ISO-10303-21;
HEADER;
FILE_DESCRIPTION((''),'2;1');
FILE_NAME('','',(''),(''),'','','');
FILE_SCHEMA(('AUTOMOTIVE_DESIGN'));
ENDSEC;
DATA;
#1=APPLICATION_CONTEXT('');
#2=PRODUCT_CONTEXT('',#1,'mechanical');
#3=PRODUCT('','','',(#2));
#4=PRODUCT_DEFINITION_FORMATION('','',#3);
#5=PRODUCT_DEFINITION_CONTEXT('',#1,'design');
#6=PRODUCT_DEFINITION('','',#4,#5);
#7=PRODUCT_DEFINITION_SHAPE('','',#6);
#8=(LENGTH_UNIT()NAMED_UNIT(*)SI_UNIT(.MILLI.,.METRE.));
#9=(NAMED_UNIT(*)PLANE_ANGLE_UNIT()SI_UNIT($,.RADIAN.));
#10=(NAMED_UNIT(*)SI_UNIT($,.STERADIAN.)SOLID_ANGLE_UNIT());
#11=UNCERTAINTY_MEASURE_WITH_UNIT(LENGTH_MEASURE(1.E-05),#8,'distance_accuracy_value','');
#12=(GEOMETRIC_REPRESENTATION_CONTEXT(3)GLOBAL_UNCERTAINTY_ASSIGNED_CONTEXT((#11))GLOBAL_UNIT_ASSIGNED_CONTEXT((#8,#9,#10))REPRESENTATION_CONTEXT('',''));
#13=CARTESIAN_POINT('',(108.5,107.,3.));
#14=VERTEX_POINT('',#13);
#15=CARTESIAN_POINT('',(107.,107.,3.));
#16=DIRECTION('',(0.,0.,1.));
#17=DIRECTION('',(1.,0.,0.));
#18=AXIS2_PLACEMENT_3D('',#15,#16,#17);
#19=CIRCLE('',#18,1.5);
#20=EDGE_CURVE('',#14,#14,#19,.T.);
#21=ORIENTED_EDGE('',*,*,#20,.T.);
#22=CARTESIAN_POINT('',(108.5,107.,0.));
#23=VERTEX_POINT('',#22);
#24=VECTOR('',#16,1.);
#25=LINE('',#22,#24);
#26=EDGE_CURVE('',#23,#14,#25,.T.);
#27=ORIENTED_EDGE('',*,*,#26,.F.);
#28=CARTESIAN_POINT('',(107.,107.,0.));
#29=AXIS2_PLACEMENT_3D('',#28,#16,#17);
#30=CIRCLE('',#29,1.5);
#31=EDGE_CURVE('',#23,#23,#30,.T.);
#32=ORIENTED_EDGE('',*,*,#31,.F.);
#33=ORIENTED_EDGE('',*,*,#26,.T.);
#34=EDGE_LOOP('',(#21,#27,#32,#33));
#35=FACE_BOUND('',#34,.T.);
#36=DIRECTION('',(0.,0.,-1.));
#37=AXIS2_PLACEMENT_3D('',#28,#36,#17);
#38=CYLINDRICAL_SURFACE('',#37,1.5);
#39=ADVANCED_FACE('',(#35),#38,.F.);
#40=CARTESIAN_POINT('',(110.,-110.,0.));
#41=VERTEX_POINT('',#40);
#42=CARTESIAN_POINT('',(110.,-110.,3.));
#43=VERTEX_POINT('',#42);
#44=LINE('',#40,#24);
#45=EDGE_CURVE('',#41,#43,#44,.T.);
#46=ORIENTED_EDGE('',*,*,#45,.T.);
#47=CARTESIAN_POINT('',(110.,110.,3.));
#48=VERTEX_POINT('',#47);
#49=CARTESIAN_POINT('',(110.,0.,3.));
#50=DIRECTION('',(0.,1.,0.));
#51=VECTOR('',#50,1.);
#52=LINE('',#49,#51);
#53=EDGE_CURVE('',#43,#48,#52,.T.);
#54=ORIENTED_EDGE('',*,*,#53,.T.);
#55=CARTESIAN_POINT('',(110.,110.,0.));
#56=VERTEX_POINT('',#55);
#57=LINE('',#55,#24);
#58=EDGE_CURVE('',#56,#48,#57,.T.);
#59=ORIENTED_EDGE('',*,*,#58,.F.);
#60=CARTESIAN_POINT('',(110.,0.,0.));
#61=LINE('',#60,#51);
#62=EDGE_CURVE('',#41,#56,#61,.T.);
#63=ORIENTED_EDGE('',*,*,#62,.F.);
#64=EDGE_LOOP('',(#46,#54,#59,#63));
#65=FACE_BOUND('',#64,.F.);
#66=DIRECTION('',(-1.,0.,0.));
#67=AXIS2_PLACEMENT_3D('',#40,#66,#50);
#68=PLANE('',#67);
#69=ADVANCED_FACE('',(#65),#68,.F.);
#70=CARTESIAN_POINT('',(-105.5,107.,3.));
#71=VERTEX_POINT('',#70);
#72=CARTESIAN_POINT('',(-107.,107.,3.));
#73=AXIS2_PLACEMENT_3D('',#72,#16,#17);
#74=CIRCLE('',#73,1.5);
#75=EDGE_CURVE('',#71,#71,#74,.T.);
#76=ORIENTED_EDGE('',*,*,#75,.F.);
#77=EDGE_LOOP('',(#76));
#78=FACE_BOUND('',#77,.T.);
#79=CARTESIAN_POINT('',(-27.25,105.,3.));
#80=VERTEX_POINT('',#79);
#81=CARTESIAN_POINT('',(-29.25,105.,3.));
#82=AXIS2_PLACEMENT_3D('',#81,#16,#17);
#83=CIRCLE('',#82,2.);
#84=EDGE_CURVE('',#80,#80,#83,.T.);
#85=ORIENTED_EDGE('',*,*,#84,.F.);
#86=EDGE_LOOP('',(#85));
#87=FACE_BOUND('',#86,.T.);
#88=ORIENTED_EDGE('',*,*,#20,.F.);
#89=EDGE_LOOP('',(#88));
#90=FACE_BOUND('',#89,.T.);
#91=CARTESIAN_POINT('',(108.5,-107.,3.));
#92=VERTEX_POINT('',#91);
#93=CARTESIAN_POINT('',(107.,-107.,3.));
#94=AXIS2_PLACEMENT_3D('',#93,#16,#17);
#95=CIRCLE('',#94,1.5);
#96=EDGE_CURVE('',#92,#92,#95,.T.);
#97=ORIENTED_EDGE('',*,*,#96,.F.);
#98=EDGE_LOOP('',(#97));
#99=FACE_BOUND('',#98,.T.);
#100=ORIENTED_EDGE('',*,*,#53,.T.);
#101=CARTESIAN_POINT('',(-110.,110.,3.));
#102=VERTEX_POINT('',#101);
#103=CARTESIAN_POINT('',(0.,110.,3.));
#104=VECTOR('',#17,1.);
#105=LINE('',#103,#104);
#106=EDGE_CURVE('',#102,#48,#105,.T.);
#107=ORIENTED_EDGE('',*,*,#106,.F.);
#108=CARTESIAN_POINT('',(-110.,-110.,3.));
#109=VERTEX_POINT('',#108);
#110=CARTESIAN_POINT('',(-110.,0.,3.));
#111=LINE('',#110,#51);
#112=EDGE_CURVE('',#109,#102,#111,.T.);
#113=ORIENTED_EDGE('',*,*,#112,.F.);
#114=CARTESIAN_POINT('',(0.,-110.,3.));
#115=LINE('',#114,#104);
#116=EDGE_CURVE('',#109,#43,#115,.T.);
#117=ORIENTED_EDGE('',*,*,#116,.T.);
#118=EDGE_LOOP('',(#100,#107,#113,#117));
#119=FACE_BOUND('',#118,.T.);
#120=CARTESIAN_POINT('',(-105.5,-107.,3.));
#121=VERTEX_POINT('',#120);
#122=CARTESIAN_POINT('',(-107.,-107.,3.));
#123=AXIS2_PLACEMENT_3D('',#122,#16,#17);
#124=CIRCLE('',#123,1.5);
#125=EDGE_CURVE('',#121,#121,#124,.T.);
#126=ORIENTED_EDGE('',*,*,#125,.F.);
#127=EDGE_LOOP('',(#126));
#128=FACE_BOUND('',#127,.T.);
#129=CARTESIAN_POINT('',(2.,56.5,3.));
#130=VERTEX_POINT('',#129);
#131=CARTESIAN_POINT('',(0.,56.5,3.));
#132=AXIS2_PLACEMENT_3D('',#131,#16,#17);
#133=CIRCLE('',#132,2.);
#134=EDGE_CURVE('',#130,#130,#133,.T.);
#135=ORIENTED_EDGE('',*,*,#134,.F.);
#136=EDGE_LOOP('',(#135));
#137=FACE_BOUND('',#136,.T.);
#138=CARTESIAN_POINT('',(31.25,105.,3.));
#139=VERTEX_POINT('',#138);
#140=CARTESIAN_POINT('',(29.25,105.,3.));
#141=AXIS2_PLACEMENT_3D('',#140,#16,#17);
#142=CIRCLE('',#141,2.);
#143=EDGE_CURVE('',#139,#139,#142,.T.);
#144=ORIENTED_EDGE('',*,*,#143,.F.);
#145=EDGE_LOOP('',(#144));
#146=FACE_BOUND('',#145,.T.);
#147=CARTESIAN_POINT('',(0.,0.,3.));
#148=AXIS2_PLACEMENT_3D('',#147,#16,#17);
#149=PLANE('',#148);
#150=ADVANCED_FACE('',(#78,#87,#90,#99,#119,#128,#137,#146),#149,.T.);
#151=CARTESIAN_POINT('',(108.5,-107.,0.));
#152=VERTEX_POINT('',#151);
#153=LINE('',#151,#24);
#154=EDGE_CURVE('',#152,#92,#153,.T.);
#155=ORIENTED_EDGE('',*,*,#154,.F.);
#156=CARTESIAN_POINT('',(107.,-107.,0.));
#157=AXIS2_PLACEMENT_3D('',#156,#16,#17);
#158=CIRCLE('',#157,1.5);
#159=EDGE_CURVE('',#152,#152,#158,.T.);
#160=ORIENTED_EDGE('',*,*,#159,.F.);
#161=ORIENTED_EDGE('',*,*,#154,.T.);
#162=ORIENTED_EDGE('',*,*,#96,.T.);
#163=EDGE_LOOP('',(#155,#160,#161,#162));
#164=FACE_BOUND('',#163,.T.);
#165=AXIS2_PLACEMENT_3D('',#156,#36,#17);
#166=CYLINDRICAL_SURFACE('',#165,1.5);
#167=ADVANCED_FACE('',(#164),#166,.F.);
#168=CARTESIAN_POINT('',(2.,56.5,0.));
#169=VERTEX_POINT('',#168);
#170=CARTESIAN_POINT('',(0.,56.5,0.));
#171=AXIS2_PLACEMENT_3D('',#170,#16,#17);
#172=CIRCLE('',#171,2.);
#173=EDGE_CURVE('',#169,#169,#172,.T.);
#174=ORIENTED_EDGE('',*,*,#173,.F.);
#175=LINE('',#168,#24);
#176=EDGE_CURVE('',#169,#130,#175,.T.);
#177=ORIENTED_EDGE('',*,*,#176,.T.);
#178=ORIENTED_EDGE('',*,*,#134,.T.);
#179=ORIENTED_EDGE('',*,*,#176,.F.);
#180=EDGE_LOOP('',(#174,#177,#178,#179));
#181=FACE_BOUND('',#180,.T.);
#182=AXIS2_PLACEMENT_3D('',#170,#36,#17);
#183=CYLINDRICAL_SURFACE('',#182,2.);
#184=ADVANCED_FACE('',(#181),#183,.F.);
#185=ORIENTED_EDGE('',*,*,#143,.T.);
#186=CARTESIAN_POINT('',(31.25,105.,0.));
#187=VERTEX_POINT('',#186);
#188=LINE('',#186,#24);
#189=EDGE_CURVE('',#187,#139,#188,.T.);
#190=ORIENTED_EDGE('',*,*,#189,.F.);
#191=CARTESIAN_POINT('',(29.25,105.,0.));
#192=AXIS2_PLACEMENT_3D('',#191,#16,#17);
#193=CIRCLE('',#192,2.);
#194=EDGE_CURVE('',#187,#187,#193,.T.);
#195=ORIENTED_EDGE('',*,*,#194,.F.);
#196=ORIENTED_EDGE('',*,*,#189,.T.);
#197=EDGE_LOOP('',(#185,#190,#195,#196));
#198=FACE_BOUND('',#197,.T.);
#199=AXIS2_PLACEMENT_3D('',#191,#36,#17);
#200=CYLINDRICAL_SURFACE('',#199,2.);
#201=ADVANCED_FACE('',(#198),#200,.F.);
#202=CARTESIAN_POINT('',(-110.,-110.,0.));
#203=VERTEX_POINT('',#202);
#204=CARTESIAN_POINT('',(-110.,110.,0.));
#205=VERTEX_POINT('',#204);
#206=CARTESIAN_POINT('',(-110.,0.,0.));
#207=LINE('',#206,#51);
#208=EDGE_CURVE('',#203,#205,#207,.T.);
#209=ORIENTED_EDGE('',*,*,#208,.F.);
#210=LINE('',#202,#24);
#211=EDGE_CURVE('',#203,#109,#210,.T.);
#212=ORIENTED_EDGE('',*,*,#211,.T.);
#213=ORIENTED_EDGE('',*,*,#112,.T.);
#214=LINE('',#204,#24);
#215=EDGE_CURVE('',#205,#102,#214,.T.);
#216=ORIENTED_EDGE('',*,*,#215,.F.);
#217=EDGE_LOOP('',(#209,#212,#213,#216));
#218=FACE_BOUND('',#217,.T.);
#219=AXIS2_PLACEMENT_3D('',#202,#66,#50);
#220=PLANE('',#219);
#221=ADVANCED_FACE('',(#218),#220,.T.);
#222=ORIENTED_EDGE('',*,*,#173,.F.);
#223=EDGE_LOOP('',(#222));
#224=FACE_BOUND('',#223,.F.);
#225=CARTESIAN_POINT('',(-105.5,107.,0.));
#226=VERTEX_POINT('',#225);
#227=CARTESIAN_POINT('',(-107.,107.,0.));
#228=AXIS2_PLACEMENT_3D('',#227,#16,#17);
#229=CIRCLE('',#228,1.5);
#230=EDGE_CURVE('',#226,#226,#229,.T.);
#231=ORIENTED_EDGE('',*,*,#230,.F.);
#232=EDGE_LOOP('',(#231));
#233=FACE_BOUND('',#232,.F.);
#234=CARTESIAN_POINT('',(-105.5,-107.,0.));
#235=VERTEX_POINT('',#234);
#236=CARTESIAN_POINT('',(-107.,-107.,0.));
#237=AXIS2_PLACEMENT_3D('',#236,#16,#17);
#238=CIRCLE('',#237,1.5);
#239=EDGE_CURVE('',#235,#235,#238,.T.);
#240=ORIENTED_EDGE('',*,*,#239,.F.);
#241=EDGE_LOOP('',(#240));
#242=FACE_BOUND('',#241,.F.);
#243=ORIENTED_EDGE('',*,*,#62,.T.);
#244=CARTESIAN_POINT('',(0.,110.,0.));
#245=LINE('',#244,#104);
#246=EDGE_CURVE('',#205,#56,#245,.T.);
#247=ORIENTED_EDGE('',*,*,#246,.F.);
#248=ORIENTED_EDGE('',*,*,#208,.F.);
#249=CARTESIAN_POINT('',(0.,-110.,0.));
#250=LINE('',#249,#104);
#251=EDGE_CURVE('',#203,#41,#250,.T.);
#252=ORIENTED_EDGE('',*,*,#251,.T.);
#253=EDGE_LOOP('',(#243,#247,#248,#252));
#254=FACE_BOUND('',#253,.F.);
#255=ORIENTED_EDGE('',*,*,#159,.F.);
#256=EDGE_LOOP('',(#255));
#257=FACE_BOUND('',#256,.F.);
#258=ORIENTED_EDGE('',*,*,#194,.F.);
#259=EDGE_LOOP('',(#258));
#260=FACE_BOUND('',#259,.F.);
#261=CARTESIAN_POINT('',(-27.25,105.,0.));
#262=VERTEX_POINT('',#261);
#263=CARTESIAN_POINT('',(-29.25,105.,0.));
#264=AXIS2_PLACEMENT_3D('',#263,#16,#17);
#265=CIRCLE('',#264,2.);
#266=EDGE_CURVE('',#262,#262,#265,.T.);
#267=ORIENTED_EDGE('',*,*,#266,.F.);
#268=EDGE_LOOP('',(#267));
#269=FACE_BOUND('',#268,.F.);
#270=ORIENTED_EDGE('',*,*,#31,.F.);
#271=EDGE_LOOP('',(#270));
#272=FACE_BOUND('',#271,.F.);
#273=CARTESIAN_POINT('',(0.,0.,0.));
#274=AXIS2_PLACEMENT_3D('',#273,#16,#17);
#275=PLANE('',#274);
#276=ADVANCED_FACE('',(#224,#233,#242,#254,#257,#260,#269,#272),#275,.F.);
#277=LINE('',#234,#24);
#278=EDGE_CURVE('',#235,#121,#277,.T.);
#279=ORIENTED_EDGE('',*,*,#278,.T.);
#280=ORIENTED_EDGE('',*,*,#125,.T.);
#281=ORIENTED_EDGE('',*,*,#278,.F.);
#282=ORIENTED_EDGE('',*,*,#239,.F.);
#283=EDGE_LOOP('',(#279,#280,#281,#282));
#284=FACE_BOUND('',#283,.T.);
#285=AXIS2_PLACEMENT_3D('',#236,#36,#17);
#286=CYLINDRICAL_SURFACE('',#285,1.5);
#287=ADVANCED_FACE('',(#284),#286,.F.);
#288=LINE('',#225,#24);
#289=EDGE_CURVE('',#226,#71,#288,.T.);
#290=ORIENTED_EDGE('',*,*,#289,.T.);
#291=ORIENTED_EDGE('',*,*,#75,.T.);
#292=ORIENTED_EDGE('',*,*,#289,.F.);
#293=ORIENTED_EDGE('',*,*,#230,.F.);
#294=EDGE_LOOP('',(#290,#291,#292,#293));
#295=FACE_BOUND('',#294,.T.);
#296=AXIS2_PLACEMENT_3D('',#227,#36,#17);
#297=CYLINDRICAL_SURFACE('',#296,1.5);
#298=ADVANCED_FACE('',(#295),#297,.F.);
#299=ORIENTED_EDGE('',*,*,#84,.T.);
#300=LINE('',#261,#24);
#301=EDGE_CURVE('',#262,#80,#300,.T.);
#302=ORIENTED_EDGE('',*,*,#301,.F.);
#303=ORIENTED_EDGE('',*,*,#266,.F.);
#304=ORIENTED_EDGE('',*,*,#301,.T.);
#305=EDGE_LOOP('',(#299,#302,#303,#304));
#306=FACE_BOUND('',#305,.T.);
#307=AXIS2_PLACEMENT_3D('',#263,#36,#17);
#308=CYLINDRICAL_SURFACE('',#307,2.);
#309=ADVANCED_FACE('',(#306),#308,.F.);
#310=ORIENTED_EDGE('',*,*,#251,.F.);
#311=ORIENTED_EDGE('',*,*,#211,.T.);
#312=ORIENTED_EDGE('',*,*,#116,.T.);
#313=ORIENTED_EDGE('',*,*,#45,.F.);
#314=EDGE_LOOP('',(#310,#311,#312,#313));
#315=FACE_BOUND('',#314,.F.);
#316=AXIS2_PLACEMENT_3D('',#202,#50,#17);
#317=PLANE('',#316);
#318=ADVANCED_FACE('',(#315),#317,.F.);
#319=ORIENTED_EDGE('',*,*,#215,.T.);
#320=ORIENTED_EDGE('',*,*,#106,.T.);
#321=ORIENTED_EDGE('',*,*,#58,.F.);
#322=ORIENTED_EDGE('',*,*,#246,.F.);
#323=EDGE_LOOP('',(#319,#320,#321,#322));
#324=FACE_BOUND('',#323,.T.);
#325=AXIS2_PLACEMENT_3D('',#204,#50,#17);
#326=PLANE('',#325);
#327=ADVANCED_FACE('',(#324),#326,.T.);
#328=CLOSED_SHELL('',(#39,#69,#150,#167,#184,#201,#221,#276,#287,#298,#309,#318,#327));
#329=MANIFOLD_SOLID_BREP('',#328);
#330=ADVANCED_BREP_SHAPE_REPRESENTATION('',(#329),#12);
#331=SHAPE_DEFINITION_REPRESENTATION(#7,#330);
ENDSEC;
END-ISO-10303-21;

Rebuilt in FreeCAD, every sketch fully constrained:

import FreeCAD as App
import Part
import Sketcher

V = App.Vector
Q = App.Units.Quantity


def add_polygon(sketch, points):
    """Adds a closed chain of lines whose ends are joined by coincident constraints."""
    first, n = sketch.GeometryCount, len(points)
    for a, b in zip(points, points[1:] + points[:1]):
        sketch.addGeometry(Part.LineSegment(App.Vector(*a, 0), App.Vector(*b, 0)), False)
    for i in range(n):
        sketch.addConstraint(Sketcher.Constraint("Coincident", first + i, 2, first + (i + 1) % n, 1))

doc = App.newDocument("Part")
body = doc.addObject("PartDesign::Body", "Body")

# Sketch on XY plane
sketch1 = doc.addObject("Sketcher::SketchObject", "Sketch")
body.addObject(sketch1)
sketch1.AttachmentSupport = (doc.XY_Plane, [""])
sketch1.MapMode = "FlatFace"
add_polygon(sketch1, [(-110, 110), (-110, -110), (110, -110), (110, 110)])  # lines 0-3
sketch1.addGeometry(Part.Circle(V(-107, -107, 0), V(0, 0, 1), 1.5), False)  # 4
sketch1.addGeometry(Part.Circle(V(107, -107, 0), V(0, 0, 1), 1.5), False)  # 5
sketch1.addGeometry(Part.Circle(V(-107, 107, 0), V(0, 0, 1), 1.5), False)  # 6
sketch1.addGeometry(Part.Circle(V(-29.2, 105, 0), V(0, 0, 1), 2), False)  # 7
sketch1.addGeometry(Part.Circle(V(0, 56.5, 0), V(0, 0, 1), 2), False)  # 8
sketch1.addGeometry(Part.Circle(V(29.2, 105, 0), V(0, 0, 1), 2), False)  # 9
sketch1.addGeometry(Part.Circle(V(107, 107, 0), V(0, 0, 1), 1.5), False)  # 10
sketch1.addConstraint(Sketcher.Constraint("Vertical", 0))
sketch1.addConstraint(Sketcher.Constraint("Horizontal", 1))
sketch1.addConstraint(Sketcher.Constraint("Vertical", 2))
sketch1.addConstraint(Sketcher.Constraint("Horizontal", 3))
sketch1.addConstraint(Sketcher.Constraint("Equal", 4, 5))
sketch1.addConstraint(Sketcher.Constraint("Equal", 5, 6))
sketch1.addConstraint(Sketcher.Constraint("Equal", 7, 8))
sketch1.addConstraint(Sketcher.Constraint("Equal", 8, 9))
sketch1.addConstraint(Sketcher.Constraint("Equal", 6, 10))
sketch1.addConstraint(Sketcher.Constraint("Symmetric", 5, 3, 6, 3, -1, 1))
sketch1.addConstraint(Sketcher.Constraint("Symmetric", 4, 3, 10, 3, -1, 1))
sketch1.addConstraint(Sketcher.Constraint("Symmetric", 0, 2, 2, 2, -1, 1))
sketch1.addConstraint(Sketcher.Constraint("Symmetric", 4, 3, 5, 3, -2))
sketch1.addConstraint(Sketcher.Constraint("Symmetric", 7, 3, 9, 3, -2))
sketch1.addConstraint(Sketcher.Constraint("PointOnObject", 8, 3, -2))
sketch1.addConstraint(Sketcher.Constraint("Equal", 3, 0))
sketch1.addConstraint(Sketcher.Constraint("Diameter", 4, Q("3 mm")))
sketch1.addConstraint(Sketcher.Constraint("Diameter", 7, Q("4 mm")))
sketch1.addConstraint(Sketcher.Constraint("DistanceX", 1, 1, 1, 2, Q("220 mm")))
sketch1.addConstraint(Sketcher.Constraint("DistanceX", 4, 3, -1, 1, Q("107 mm")))
sketch1.addConstraint(Sketcher.Constraint("DistanceY", 4, 3, -1, 1, Q("107 mm")))
sketch1.addConstraint(Sketcher.Constraint("DistanceY", -1, 1, 7, 3, Q("105 mm")))
sketch1.addConstraint(Sketcher.Constraint("DistanceY", -1, 1, 8, 3, Q("56.5 mm")))
sketch1.addConstraint(Sketcher.Constraint("DistanceX", 7, 3, 9, 3, Q("58.5 mm")))
pad1 = doc.addObject("PartDesign::Pad", "Pad")
body.addObject(pad1)
pad1.Profile = sketch1
pad1.Length = 3

doc.recompute()
